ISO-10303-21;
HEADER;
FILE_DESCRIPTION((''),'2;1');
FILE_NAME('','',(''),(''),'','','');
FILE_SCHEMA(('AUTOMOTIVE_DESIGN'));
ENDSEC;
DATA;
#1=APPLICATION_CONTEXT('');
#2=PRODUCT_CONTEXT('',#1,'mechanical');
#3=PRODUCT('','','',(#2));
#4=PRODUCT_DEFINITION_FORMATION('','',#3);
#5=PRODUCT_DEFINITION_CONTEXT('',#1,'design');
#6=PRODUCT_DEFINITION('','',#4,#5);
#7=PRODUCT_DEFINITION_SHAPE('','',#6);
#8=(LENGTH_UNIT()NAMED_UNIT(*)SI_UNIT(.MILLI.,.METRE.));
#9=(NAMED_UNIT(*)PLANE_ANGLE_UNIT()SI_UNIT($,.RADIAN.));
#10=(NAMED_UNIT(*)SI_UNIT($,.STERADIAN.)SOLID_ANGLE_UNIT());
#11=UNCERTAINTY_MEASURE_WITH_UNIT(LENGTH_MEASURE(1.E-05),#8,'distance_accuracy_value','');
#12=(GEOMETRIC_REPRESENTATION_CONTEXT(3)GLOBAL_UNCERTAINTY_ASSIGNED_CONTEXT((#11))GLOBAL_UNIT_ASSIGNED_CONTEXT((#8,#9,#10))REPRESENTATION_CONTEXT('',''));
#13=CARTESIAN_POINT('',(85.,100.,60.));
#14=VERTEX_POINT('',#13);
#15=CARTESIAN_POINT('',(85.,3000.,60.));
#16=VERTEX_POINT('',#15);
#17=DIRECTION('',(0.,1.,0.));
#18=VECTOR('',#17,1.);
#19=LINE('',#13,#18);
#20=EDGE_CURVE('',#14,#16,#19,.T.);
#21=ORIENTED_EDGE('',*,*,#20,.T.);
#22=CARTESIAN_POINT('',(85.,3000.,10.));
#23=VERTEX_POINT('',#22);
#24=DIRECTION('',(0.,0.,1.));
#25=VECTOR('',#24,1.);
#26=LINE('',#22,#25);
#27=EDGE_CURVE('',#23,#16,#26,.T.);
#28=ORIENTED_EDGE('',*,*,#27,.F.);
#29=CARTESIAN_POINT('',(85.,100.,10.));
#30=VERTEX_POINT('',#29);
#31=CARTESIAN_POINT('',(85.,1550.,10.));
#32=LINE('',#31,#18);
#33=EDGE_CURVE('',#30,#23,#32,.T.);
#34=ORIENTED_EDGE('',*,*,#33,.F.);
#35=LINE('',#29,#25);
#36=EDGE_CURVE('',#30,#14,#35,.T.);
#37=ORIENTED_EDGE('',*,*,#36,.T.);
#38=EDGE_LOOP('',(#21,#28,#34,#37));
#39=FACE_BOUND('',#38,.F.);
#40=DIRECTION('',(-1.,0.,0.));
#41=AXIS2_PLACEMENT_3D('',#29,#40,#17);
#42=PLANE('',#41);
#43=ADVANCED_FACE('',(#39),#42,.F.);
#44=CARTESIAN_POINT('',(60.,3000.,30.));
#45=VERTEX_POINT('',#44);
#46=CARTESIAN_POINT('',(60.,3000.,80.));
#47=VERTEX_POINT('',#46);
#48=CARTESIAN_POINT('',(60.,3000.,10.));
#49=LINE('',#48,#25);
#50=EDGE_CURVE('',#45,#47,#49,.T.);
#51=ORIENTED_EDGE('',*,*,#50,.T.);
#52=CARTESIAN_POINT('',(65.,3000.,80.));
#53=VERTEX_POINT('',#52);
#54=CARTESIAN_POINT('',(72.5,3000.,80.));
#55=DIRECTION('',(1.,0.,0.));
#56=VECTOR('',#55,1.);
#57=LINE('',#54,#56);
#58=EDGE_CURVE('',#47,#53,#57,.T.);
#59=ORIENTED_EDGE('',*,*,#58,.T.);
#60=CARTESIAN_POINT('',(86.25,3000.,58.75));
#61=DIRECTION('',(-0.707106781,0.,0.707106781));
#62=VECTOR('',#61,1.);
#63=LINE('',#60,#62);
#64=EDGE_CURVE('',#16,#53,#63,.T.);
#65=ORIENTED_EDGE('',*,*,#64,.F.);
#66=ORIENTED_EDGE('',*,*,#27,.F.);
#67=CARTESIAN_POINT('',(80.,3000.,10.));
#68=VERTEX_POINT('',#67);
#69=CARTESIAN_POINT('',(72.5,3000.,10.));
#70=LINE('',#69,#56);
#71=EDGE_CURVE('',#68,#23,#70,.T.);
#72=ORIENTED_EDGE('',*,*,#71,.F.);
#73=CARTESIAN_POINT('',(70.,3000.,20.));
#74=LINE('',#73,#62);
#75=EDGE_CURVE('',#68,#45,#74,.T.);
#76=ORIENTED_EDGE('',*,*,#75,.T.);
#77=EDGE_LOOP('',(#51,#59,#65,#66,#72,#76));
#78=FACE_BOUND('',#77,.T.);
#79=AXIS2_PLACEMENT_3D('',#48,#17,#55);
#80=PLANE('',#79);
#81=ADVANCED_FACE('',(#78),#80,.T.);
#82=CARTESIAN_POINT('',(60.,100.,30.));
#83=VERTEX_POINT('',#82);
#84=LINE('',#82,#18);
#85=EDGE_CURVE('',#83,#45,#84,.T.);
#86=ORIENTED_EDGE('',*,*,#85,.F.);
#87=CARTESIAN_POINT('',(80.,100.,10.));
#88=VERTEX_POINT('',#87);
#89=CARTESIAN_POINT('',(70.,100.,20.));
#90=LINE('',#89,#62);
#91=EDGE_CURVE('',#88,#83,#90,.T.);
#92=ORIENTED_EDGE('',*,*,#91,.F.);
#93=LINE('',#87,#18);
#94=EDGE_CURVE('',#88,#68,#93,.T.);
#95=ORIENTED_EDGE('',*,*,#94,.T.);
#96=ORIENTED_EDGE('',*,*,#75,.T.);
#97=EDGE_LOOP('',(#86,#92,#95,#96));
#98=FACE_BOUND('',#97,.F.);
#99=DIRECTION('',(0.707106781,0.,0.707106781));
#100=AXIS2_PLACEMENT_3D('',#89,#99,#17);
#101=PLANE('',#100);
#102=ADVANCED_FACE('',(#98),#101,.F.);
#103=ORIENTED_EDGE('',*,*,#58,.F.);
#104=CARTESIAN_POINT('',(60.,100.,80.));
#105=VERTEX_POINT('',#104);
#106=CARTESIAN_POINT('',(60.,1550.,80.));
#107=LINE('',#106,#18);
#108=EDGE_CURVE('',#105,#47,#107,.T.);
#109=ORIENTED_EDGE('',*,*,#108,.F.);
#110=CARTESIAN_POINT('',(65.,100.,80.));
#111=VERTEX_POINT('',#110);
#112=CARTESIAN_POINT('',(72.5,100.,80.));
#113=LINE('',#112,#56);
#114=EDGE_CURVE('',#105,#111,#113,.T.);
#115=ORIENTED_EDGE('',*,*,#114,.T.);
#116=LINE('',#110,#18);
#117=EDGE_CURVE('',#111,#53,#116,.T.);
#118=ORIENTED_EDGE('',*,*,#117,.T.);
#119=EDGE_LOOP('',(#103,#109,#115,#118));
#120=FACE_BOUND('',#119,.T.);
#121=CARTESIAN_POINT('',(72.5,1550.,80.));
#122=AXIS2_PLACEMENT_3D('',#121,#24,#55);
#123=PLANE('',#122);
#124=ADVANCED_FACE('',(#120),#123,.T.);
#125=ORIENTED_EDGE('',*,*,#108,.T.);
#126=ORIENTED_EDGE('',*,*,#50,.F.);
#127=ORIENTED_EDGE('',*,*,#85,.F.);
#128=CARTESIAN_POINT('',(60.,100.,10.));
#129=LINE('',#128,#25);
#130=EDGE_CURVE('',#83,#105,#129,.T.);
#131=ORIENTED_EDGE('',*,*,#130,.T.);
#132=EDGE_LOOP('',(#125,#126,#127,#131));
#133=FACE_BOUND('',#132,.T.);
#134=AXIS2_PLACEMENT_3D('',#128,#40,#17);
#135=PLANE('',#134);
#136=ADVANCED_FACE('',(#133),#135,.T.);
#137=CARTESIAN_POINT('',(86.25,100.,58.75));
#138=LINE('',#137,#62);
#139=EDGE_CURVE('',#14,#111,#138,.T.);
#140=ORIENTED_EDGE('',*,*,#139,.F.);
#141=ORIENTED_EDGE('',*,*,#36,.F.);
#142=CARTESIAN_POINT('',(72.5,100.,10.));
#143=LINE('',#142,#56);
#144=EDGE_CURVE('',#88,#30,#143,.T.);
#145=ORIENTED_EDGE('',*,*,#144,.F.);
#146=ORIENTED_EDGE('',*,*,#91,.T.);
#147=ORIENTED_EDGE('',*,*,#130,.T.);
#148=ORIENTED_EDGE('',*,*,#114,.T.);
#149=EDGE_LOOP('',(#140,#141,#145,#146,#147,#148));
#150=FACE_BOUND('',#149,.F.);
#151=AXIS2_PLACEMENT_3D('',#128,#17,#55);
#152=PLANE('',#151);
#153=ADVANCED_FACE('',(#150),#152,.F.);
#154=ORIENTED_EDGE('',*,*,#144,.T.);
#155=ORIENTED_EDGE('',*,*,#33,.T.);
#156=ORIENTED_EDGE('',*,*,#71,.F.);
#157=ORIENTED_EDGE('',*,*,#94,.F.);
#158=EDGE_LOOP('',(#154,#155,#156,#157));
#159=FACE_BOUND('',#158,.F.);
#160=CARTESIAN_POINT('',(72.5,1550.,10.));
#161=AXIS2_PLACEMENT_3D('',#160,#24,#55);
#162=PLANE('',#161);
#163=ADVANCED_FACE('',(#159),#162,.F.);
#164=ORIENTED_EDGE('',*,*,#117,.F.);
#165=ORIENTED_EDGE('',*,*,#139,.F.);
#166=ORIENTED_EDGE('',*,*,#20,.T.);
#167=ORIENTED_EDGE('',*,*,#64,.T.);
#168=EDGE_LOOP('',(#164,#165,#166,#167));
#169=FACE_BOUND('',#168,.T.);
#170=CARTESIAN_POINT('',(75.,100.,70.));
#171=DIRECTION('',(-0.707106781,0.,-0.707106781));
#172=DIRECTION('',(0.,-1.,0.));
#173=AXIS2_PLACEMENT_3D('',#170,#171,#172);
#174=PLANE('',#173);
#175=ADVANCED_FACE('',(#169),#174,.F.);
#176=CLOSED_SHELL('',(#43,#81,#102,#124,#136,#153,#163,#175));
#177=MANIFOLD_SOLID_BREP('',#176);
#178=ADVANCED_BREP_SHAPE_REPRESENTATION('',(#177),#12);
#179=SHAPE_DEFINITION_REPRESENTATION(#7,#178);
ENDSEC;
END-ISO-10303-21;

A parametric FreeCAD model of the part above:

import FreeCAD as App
import Part
import Sketcher


def edges_at(feature, points):
    """Names of the edges that pass closest to the given points."""
    edges = feature.Shape.Edges
    near = lambda p: min(range(len(edges)), key=lambda i: edges[i].distToShape(Part.Vertex(*p))[0])
    return sorted({f"Edge{near(p) + 1}" for p in points})

doc = App.newDocument("Part")
params = doc.addObject("Spreadsheet::Sheet", "Params")
for row, (alias, value) in enumerate([
    ("sketch1_width", "25 mm"),
    ("sketch1_height", "2900 mm"),
    ("pad1_length", "70 mm"),
    ("chamfer_size", "20 mm"),
    ("chamfer2_size", "20 mm"),
], start=1):
    params.set(f"A{row}", alias)
    params.set(f"B{row}", "=" + value)
    params.setAlias(f"B{row}", alias)

body = doc.addObject("PartDesign::Body", "Body")

# Sketch on XY plane
sketch1 = doc.addObject("Sketcher::SketchObject", "Sketch")
body.addObject(sketch1)
sketch1.AttachmentSupport = (doc.XY_Plane, [""])
sketch1.MapMode = "FlatFace"
sketch1.addGeometry([
    Part.LineSegment(App.Vector(200, 2900, 0), App.Vector(200, 0, 0)),
    Part.LineSegment(App.Vector(200, 0, 0), App.Vector(225, 0, 0)),
    Part.LineSegment(App.Vector(225, 0, 0), App.Vector(225, 2900, 0)),
    Part.LineSegment(App.Vector(225, 2900, 0), App.Vector(200, 2900, 0)),
], False)
sketch1.addConstraint([
    Sketcher.Constraint("Coincident", 0, 2, 1, 1),
    Sketcher.Constraint("Coincident", 1, 2, 2, 1),
    Sketcher.Constraint("Coincident", 2, 2, 3, 1),
    Sketcher.Constraint("Coincident", 3, 2, 0, 1),
    Sketcher.Constraint("Vertical", 0),
    Sketcher.Constraint("Horizontal", 1),
    Sketcher.Constraint("Vertical", 2),
    Sketcher.Constraint("Horizontal", 3),
    Sketcher.Constraint("PointOnObject", 0, 2, -1),
    Sketcher.Constraint("DistanceX", 1, 1, 1, 2, 25.0),
    Sketcher.Constraint("DistanceY", 0, 2, 0, 1, 2900.0),
    Sketcher.Constraint("DistanceX", -1, 1, 0, 2, 200.0),
])
sketch1.setExpression("Constraints[9]", "Params.sketch1_width")
sketch1.setExpression("Constraints[10]", "Params.sketch1_height")
pad1 = doc.addObject("PartDesign::Pad", "Pad")
body.addObject(pad1)
pad1.Profile = sketch1
pad1.setExpression("Length", "Params.pad1_length")
doc.recompute()

chamfer = doc.addObject("PartDesign::Chamfer", "Chamfer")
body.addObject(chamfer)
chamfer.Base = (pad1, edges_at(pad1, [(225, 1450, 70)]))
chamfer.setExpression("Size", "Params.chamfer_size")
doc.recompute()

chamfer2 = doc.addObject("PartDesign::Chamfer", "Chamfer001")
body.addObject(chamfer2)
chamfer2.Base = (chamfer, edges_at(chamfer, [(200, 1450, 0)]))
chamfer2.setExpression("Size", "Params.chamfer2_size")
body2 = doc.addObject("PartDesign::Body", "Body001")
doc.recompute()

body.Placement = App.Placement(App.Vector(-140, 100, 10), App.Rotation(App.Vector(0, 0, 1), 0))
boolean = doc.addObject("PartDesign::Boolean", "Boolean")
body2.addObject(boolean)
boolean.Type = "Fuse"
boolean.addObjects([body])

doc.recompute()
